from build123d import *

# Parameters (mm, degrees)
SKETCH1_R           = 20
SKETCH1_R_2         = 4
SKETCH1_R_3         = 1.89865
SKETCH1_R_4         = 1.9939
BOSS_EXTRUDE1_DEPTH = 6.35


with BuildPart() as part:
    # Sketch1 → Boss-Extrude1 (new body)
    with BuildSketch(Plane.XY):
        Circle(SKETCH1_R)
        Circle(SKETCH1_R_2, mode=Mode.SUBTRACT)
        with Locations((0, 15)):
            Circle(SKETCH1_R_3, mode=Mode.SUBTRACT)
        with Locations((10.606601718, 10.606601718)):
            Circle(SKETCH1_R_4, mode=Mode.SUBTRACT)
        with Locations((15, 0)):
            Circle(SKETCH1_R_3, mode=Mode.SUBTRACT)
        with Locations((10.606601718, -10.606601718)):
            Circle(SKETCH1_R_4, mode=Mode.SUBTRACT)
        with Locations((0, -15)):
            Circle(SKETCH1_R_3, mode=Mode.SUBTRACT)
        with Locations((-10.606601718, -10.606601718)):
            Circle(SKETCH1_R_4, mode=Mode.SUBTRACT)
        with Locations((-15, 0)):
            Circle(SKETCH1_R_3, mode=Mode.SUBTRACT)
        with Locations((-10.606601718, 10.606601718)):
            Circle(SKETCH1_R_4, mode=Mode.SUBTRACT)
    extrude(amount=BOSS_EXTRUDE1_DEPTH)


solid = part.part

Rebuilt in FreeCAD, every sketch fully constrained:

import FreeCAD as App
import Part
import Sketcher

V = App.Vector

doc = App.newDocument("Part")
body = doc.addObject("PartDesign::Body", "Body")

# Sketch on XY plane
sketch1 = body.newObject("Sketcher::SketchObject", "Sketch")
sketch1.AttachmentSupport = (doc.getObject("XY_Plane"), [""])
sketch1.MapMode = "FlatFace"
sketch1.addGeometry([
    Part.Circle(V(0, 0, 0), V(0, 0, 1), 20),  # 0
    Part.Circle(V(-10.606602, -10.606602, 0), V(0, 0, 1), 1.9939),  # 1
    Part.Circle(V(0, -15, 0), V(0, 0, 1), 1.89865),  # 2
    Part.Circle(V(10.606602, -10.606602, 0), V(0, 0, 1), 1.9939),  # 3
    Part.Circle(V(-15, 0, 0), V(0, 0, 1), 1.89865),  # 4
    Part.Circle(V(0, 0, 0), V(0, 0, 1), 4),  # 5
    Part.Circle(V(-10.606602, 10.606602, 0), V(0, 0, 1), 1.9939),  # 6
    Part.Circle(V(0, 15, 0), V(0, 0, 1), 1.89865),  # 7
    Part.Circle(V(15, 0, 0), V(0, 0, 1), 1.89865),  # 8
    Part.Circle(V(10.606602, 10.606602, 0), V(0, 0, 1), 1.9939),  # 9
], False)
sketch1.addConstraint([
    Sketcher.Constraint("Coincident", 0, 3, -1, 1),
    Sketcher.Constraint("Coincident", 5, 3, -1, 1),
    Sketcher.Constraint("Equal", 1, 3),
    Sketcher.Constraint("Equal", 2, 4),
    Sketcher.Constraint("Equal", 3, 6),
    Sketcher.Constraint("Equal", 4, 7),
    Sketcher.Constraint("Equal", 7, 8),
    Sketcher.Constraint("Equal", 6, 9),
    Sketcher.Constraint("Symmetric", 3, 3, 6, 3, -1, 1),
    Sketcher.Constraint("Symmetric", 2, 3, 7, 3, -1, 1),
    Sketcher.Constraint("Symmetric", 4, 3, 8, 3, -1, 1),
    Sketcher.Constraint("Symmetric", 1, 3, 9, 3, -1, 1),
    Sketcher.Constraint("Symmetric", 1, 3, 3, 3, -2),
    Sketcher.Constraint("PointOnObject", 2, 3, -2),
    Sketcher.Constraint("PointOnObject", 4, 3, -1),
    Sketcher.Constraint("Diameter", 0, 40.0),
    Sketcher.Constraint("Diameter", 5, 8.0),
    Sketcher.Constraint("DistanceY", 2, 3, -1, 1, 15.0),
    Sketcher.Constraint("DistanceX", 4, 3, -1, 1, 15.0),
    Sketcher.Constraint("Diameter", 1, 3.9878),
    Sketcher.Constraint("Diameter", 2, 3.7973),
    Sketcher.Constraint("DistanceX", 1, 3, -1, 1, 10.606602),
    Sketcher.Constraint("DistanceY", 1, 3, -1, 1, 10.606602),
])
pad1 = body.newObject("PartDesign::Pad", "Pad")
pad1.Profile = sketch1
pad1.Length = 6.35

doc.recompute()
